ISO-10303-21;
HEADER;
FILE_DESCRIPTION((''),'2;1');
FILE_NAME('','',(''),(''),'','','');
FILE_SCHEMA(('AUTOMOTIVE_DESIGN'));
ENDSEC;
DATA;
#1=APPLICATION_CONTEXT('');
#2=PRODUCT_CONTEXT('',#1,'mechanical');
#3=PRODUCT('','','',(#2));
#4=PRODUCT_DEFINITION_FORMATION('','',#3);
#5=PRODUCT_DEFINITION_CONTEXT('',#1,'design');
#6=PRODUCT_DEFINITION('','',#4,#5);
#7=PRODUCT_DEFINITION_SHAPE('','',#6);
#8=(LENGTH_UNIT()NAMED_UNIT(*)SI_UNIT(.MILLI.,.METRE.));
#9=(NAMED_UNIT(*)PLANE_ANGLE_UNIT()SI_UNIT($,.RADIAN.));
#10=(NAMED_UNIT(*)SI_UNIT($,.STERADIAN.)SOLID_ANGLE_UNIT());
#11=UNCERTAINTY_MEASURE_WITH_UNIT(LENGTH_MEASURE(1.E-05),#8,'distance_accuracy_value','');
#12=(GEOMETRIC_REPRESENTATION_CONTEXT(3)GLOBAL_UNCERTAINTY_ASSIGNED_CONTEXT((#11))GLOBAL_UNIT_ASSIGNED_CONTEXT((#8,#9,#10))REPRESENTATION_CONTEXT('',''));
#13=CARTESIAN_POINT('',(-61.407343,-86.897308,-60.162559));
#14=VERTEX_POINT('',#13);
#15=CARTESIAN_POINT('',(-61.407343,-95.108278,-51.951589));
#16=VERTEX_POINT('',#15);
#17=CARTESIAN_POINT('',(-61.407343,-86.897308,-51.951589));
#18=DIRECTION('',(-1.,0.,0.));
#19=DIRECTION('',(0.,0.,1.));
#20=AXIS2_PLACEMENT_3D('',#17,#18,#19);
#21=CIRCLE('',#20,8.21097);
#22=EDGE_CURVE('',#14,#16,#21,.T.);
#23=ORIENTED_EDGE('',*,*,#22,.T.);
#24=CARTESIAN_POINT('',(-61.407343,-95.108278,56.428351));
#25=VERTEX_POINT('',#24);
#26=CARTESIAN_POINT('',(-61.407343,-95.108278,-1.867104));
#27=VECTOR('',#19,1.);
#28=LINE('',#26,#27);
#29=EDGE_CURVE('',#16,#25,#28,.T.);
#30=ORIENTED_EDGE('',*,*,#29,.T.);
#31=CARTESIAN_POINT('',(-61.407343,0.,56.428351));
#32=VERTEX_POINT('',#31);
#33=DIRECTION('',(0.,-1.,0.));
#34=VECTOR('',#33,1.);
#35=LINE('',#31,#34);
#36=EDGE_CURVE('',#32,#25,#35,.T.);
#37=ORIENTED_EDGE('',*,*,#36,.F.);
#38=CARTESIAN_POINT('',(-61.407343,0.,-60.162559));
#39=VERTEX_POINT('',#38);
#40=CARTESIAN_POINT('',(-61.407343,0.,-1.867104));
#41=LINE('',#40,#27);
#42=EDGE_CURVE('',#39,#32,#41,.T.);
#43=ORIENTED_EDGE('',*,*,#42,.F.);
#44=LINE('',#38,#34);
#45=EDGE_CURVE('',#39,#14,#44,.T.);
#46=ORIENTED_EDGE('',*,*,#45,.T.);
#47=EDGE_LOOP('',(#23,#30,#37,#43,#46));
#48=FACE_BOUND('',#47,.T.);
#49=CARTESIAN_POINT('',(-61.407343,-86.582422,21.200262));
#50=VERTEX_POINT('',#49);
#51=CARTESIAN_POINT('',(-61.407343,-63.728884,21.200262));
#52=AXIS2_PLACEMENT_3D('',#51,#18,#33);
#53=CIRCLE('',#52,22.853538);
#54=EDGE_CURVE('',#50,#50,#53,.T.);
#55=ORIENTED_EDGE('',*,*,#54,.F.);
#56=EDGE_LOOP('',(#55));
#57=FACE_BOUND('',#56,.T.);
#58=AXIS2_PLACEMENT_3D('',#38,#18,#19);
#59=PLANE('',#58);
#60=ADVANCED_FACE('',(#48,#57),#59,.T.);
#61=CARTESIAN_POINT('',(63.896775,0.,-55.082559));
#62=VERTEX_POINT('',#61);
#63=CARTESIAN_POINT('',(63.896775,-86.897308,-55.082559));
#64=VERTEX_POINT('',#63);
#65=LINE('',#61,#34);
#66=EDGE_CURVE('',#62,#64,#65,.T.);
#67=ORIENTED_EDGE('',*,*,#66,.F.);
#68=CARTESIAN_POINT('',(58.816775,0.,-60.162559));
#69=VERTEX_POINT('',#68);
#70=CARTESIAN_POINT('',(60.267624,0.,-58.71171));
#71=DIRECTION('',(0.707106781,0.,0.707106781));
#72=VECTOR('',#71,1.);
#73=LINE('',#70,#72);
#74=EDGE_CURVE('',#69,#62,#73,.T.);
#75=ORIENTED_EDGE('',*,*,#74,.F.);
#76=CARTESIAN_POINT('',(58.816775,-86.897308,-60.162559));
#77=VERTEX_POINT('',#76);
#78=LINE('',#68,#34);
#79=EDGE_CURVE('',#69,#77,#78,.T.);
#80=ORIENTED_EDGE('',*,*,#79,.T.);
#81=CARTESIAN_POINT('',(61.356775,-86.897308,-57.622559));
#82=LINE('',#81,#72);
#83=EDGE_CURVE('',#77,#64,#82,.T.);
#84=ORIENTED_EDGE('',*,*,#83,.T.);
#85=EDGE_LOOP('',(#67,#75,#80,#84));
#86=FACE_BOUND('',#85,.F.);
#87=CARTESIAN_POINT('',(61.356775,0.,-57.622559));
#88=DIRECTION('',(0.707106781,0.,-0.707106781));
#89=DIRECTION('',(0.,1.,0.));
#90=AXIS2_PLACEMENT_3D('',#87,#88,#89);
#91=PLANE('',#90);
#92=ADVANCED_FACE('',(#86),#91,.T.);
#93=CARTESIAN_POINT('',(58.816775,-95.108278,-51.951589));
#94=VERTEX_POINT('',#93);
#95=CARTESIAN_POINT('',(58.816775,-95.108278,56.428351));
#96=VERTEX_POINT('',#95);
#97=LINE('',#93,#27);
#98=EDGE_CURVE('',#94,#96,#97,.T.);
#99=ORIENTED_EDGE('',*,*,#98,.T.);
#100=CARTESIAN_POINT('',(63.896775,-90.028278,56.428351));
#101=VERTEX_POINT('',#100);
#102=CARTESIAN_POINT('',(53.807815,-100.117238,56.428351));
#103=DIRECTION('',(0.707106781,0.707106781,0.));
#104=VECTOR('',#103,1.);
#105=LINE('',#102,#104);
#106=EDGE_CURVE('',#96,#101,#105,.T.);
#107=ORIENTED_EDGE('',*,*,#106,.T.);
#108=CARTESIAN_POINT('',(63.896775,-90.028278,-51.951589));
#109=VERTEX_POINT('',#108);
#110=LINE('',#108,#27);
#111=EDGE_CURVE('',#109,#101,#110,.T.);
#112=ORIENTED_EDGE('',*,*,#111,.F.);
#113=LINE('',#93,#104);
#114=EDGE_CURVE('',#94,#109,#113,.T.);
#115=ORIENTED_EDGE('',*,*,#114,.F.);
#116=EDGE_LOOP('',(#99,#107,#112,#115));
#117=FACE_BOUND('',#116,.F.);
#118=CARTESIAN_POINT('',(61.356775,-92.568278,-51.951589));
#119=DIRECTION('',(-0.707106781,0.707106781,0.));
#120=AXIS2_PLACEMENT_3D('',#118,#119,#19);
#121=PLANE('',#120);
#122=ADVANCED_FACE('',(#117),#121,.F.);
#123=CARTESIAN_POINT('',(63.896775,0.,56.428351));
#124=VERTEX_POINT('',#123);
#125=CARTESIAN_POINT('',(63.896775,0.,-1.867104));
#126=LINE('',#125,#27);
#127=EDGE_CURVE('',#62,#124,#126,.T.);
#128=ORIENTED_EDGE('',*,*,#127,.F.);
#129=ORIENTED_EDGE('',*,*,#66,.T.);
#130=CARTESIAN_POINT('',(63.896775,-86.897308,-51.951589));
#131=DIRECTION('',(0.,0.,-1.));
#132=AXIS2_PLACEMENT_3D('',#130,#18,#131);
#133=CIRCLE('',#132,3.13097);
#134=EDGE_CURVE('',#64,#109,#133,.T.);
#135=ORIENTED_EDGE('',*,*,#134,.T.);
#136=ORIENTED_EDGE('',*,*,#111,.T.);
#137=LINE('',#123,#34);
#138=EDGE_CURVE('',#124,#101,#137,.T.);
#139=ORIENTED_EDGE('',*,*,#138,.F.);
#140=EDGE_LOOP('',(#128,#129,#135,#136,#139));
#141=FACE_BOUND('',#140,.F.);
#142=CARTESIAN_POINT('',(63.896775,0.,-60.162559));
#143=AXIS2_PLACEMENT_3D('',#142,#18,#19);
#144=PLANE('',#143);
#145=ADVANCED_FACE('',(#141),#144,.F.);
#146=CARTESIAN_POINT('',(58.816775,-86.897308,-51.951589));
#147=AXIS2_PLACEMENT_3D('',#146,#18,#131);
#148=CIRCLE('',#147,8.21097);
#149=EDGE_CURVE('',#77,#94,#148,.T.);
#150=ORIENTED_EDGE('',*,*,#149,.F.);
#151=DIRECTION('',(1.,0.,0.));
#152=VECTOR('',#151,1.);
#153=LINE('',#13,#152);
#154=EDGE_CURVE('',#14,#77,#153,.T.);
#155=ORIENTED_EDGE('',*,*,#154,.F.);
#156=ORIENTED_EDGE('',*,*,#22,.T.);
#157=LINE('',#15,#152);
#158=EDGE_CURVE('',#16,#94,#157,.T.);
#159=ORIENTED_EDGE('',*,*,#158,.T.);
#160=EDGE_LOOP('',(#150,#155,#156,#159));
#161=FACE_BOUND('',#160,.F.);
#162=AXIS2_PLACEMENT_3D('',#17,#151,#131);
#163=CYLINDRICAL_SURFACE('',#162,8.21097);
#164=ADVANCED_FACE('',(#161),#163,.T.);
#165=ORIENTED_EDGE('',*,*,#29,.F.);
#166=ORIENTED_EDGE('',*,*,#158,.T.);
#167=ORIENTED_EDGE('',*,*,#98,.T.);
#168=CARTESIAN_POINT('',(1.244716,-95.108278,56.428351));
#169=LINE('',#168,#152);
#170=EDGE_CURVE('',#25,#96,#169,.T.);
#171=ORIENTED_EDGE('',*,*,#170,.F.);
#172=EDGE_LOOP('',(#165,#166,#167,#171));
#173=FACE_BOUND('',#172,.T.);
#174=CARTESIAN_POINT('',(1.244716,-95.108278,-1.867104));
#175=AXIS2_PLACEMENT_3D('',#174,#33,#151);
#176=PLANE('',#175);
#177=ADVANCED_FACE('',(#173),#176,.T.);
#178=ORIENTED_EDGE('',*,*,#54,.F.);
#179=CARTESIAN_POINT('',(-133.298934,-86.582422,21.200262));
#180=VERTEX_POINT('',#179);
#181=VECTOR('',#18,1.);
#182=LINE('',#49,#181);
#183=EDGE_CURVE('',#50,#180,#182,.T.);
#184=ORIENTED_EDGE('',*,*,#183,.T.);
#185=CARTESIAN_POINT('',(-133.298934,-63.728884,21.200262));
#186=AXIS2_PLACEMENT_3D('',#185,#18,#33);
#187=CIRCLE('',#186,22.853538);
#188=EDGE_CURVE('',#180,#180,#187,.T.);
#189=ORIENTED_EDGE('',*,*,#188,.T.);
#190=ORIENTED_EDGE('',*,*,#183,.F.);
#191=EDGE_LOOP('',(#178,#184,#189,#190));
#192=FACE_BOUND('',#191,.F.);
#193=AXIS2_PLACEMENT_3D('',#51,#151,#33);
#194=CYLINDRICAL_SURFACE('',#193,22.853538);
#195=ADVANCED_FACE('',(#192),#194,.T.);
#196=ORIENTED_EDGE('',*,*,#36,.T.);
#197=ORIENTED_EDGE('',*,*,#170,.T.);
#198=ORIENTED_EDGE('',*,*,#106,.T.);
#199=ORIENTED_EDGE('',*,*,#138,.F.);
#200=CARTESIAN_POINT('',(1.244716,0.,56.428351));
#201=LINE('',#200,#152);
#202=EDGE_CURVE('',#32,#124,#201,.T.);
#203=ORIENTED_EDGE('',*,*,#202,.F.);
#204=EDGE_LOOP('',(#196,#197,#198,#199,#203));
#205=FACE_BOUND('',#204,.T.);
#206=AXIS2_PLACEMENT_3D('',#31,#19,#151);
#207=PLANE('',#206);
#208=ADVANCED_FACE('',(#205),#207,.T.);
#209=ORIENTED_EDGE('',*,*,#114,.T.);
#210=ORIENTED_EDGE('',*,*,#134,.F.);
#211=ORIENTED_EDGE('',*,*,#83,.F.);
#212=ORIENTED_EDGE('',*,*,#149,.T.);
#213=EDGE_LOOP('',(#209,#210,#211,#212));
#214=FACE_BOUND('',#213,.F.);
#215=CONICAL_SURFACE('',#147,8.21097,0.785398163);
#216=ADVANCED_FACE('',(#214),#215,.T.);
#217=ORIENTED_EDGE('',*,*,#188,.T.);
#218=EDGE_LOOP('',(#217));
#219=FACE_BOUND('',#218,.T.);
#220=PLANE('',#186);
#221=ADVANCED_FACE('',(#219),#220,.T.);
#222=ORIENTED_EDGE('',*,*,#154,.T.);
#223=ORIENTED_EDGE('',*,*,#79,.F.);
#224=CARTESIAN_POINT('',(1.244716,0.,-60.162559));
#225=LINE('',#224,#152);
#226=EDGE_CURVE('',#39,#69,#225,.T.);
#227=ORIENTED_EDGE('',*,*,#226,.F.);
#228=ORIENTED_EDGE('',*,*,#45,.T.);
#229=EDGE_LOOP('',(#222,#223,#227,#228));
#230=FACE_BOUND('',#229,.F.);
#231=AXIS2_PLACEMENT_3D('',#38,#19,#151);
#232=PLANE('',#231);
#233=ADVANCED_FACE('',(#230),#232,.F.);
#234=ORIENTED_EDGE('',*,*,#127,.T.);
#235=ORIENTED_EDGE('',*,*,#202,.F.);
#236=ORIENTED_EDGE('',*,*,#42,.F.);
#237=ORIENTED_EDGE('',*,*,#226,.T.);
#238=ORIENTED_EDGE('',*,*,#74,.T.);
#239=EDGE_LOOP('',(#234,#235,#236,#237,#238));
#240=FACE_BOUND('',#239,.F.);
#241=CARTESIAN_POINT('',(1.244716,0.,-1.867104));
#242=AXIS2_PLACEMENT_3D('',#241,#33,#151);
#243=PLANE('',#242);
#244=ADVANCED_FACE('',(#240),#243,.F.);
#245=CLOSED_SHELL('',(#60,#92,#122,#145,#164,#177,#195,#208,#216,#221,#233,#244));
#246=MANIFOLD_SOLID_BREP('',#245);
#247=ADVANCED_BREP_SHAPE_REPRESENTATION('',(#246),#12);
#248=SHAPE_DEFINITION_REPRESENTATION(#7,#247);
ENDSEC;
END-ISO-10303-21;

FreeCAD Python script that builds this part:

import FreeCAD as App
import Part
import Sketcher

V = App.Vector
Q = App.Units.Quantity


def edges_at(feature, points):
    """Names of the edges that pass closest to the given points."""
    edges = feature.Shape.Edges
    near = lambda p: min(range(len(edges)), key=lambda i: edges[i].distToShape(Part.Vertex(*p))[0])
    return sorted({f"Edge{near(p) + 1}" for p in points})


def add_polygon(sketch, points):
    """Adds a closed chain of lines whose ends are joined by coincident constraints."""
    first, n = sketch.GeometryCount, len(points)
    for a, b in zip(points, points[1:] + points[:1]):
        sketch.addGeometry(Part.LineSegment(App.Vector(*a, 0), App.Vector(*b, 0)), False)
    for i in range(n):
        sketch.addConstraint(Sketcher.Constraint("Coincident", first + i, 2, first + (i + 1) % n, 1))

doc = App.newDocument("Part")
body = doc.addObject("PartDesign::Body", "Body")

# Sketch on XZ plane
sketch1 = body.newObject("Sketcher::SketchObject", "Sketch")
sketch1.AttachmentSupport = (doc.getObject("XZ_Plane"), [""])
sketch1.MapMode = "FlatFace"
add_polygon(sketch1, [(-61, 56), (-61, -60), (64, -60), (64, 56)])  # lines 0-3
sketch1.addConstraint([
    Sketcher.Constraint("Vertical", 0),
    Sketcher.Constraint("Horizontal", 1),
    Sketcher.Constraint("Vertical", 2),
    Sketcher.Constraint("Horizontal", 3),
    Sketcher.Constraint("DistanceY", 0, 2, 0, 1, 116.59091),
    Sketcher.Constraint("DistanceX", 1, 1, 1, 2, 125.304118),
    Sketcher.Constraint("DistanceY", 0, 2, -1, 1, 60.162559),
    Sketcher.Constraint("DistanceX", 0, 2, -1, 1, 61.407343),
])
pad1 = body.newObject("PartDesign::Pad", "Pad")
pad1.Profile = sketch1
pad1.Length = 95.108278
doc.recompute()

fillet = body.newObject("PartDesign::Fillet", "Fillet")
fillet.Base = (pad1, edges_at(pad1, [(1.245, -95.108, -60.163)]))
fillet.Radius = 8.21097
doc.recompute()

chamfer = body.newObject("PartDesign::Chamfer", "Chamfer")
chamfer.Base = (fillet, edges_at(fillet, [(63.897, -95.108, 2.238)]))
chamfer.Size = Q("0.2 in")

# Sketch on YZ plane
sketch2 = body.newObject("Sketcher::SketchObject", "Sketch001")
sketch2.AttachmentSupport = (doc.getObject("YZ_Plane"), [""])
sketch2.MapMode = "FlatFace"
sketch2.AttachmentOffset = App.Placement(V(0, 0, -61.407343), App.Rotation())
sketch2.addGeometry(Part.Circle(V(-64, 21, 0), V(0, 0, 1), 23), False)
sketch2.addConstraint([
    Sketcher.Constraint("Diameter", 0, 45.707076),
    Sketcher.Constraint("DistanceY", -1, 1, 0, 3, 21.200262),
    Sketcher.Constraint("DistanceX", 0, 3, -1, 1, 63.728884),
])
pad2 = body.newObject("PartDesign::Pad", "Pad001")
pad2.Profile = sketch2
pad2.Length = 71.891591
pad2.Reversed = True

doc.recompute()
